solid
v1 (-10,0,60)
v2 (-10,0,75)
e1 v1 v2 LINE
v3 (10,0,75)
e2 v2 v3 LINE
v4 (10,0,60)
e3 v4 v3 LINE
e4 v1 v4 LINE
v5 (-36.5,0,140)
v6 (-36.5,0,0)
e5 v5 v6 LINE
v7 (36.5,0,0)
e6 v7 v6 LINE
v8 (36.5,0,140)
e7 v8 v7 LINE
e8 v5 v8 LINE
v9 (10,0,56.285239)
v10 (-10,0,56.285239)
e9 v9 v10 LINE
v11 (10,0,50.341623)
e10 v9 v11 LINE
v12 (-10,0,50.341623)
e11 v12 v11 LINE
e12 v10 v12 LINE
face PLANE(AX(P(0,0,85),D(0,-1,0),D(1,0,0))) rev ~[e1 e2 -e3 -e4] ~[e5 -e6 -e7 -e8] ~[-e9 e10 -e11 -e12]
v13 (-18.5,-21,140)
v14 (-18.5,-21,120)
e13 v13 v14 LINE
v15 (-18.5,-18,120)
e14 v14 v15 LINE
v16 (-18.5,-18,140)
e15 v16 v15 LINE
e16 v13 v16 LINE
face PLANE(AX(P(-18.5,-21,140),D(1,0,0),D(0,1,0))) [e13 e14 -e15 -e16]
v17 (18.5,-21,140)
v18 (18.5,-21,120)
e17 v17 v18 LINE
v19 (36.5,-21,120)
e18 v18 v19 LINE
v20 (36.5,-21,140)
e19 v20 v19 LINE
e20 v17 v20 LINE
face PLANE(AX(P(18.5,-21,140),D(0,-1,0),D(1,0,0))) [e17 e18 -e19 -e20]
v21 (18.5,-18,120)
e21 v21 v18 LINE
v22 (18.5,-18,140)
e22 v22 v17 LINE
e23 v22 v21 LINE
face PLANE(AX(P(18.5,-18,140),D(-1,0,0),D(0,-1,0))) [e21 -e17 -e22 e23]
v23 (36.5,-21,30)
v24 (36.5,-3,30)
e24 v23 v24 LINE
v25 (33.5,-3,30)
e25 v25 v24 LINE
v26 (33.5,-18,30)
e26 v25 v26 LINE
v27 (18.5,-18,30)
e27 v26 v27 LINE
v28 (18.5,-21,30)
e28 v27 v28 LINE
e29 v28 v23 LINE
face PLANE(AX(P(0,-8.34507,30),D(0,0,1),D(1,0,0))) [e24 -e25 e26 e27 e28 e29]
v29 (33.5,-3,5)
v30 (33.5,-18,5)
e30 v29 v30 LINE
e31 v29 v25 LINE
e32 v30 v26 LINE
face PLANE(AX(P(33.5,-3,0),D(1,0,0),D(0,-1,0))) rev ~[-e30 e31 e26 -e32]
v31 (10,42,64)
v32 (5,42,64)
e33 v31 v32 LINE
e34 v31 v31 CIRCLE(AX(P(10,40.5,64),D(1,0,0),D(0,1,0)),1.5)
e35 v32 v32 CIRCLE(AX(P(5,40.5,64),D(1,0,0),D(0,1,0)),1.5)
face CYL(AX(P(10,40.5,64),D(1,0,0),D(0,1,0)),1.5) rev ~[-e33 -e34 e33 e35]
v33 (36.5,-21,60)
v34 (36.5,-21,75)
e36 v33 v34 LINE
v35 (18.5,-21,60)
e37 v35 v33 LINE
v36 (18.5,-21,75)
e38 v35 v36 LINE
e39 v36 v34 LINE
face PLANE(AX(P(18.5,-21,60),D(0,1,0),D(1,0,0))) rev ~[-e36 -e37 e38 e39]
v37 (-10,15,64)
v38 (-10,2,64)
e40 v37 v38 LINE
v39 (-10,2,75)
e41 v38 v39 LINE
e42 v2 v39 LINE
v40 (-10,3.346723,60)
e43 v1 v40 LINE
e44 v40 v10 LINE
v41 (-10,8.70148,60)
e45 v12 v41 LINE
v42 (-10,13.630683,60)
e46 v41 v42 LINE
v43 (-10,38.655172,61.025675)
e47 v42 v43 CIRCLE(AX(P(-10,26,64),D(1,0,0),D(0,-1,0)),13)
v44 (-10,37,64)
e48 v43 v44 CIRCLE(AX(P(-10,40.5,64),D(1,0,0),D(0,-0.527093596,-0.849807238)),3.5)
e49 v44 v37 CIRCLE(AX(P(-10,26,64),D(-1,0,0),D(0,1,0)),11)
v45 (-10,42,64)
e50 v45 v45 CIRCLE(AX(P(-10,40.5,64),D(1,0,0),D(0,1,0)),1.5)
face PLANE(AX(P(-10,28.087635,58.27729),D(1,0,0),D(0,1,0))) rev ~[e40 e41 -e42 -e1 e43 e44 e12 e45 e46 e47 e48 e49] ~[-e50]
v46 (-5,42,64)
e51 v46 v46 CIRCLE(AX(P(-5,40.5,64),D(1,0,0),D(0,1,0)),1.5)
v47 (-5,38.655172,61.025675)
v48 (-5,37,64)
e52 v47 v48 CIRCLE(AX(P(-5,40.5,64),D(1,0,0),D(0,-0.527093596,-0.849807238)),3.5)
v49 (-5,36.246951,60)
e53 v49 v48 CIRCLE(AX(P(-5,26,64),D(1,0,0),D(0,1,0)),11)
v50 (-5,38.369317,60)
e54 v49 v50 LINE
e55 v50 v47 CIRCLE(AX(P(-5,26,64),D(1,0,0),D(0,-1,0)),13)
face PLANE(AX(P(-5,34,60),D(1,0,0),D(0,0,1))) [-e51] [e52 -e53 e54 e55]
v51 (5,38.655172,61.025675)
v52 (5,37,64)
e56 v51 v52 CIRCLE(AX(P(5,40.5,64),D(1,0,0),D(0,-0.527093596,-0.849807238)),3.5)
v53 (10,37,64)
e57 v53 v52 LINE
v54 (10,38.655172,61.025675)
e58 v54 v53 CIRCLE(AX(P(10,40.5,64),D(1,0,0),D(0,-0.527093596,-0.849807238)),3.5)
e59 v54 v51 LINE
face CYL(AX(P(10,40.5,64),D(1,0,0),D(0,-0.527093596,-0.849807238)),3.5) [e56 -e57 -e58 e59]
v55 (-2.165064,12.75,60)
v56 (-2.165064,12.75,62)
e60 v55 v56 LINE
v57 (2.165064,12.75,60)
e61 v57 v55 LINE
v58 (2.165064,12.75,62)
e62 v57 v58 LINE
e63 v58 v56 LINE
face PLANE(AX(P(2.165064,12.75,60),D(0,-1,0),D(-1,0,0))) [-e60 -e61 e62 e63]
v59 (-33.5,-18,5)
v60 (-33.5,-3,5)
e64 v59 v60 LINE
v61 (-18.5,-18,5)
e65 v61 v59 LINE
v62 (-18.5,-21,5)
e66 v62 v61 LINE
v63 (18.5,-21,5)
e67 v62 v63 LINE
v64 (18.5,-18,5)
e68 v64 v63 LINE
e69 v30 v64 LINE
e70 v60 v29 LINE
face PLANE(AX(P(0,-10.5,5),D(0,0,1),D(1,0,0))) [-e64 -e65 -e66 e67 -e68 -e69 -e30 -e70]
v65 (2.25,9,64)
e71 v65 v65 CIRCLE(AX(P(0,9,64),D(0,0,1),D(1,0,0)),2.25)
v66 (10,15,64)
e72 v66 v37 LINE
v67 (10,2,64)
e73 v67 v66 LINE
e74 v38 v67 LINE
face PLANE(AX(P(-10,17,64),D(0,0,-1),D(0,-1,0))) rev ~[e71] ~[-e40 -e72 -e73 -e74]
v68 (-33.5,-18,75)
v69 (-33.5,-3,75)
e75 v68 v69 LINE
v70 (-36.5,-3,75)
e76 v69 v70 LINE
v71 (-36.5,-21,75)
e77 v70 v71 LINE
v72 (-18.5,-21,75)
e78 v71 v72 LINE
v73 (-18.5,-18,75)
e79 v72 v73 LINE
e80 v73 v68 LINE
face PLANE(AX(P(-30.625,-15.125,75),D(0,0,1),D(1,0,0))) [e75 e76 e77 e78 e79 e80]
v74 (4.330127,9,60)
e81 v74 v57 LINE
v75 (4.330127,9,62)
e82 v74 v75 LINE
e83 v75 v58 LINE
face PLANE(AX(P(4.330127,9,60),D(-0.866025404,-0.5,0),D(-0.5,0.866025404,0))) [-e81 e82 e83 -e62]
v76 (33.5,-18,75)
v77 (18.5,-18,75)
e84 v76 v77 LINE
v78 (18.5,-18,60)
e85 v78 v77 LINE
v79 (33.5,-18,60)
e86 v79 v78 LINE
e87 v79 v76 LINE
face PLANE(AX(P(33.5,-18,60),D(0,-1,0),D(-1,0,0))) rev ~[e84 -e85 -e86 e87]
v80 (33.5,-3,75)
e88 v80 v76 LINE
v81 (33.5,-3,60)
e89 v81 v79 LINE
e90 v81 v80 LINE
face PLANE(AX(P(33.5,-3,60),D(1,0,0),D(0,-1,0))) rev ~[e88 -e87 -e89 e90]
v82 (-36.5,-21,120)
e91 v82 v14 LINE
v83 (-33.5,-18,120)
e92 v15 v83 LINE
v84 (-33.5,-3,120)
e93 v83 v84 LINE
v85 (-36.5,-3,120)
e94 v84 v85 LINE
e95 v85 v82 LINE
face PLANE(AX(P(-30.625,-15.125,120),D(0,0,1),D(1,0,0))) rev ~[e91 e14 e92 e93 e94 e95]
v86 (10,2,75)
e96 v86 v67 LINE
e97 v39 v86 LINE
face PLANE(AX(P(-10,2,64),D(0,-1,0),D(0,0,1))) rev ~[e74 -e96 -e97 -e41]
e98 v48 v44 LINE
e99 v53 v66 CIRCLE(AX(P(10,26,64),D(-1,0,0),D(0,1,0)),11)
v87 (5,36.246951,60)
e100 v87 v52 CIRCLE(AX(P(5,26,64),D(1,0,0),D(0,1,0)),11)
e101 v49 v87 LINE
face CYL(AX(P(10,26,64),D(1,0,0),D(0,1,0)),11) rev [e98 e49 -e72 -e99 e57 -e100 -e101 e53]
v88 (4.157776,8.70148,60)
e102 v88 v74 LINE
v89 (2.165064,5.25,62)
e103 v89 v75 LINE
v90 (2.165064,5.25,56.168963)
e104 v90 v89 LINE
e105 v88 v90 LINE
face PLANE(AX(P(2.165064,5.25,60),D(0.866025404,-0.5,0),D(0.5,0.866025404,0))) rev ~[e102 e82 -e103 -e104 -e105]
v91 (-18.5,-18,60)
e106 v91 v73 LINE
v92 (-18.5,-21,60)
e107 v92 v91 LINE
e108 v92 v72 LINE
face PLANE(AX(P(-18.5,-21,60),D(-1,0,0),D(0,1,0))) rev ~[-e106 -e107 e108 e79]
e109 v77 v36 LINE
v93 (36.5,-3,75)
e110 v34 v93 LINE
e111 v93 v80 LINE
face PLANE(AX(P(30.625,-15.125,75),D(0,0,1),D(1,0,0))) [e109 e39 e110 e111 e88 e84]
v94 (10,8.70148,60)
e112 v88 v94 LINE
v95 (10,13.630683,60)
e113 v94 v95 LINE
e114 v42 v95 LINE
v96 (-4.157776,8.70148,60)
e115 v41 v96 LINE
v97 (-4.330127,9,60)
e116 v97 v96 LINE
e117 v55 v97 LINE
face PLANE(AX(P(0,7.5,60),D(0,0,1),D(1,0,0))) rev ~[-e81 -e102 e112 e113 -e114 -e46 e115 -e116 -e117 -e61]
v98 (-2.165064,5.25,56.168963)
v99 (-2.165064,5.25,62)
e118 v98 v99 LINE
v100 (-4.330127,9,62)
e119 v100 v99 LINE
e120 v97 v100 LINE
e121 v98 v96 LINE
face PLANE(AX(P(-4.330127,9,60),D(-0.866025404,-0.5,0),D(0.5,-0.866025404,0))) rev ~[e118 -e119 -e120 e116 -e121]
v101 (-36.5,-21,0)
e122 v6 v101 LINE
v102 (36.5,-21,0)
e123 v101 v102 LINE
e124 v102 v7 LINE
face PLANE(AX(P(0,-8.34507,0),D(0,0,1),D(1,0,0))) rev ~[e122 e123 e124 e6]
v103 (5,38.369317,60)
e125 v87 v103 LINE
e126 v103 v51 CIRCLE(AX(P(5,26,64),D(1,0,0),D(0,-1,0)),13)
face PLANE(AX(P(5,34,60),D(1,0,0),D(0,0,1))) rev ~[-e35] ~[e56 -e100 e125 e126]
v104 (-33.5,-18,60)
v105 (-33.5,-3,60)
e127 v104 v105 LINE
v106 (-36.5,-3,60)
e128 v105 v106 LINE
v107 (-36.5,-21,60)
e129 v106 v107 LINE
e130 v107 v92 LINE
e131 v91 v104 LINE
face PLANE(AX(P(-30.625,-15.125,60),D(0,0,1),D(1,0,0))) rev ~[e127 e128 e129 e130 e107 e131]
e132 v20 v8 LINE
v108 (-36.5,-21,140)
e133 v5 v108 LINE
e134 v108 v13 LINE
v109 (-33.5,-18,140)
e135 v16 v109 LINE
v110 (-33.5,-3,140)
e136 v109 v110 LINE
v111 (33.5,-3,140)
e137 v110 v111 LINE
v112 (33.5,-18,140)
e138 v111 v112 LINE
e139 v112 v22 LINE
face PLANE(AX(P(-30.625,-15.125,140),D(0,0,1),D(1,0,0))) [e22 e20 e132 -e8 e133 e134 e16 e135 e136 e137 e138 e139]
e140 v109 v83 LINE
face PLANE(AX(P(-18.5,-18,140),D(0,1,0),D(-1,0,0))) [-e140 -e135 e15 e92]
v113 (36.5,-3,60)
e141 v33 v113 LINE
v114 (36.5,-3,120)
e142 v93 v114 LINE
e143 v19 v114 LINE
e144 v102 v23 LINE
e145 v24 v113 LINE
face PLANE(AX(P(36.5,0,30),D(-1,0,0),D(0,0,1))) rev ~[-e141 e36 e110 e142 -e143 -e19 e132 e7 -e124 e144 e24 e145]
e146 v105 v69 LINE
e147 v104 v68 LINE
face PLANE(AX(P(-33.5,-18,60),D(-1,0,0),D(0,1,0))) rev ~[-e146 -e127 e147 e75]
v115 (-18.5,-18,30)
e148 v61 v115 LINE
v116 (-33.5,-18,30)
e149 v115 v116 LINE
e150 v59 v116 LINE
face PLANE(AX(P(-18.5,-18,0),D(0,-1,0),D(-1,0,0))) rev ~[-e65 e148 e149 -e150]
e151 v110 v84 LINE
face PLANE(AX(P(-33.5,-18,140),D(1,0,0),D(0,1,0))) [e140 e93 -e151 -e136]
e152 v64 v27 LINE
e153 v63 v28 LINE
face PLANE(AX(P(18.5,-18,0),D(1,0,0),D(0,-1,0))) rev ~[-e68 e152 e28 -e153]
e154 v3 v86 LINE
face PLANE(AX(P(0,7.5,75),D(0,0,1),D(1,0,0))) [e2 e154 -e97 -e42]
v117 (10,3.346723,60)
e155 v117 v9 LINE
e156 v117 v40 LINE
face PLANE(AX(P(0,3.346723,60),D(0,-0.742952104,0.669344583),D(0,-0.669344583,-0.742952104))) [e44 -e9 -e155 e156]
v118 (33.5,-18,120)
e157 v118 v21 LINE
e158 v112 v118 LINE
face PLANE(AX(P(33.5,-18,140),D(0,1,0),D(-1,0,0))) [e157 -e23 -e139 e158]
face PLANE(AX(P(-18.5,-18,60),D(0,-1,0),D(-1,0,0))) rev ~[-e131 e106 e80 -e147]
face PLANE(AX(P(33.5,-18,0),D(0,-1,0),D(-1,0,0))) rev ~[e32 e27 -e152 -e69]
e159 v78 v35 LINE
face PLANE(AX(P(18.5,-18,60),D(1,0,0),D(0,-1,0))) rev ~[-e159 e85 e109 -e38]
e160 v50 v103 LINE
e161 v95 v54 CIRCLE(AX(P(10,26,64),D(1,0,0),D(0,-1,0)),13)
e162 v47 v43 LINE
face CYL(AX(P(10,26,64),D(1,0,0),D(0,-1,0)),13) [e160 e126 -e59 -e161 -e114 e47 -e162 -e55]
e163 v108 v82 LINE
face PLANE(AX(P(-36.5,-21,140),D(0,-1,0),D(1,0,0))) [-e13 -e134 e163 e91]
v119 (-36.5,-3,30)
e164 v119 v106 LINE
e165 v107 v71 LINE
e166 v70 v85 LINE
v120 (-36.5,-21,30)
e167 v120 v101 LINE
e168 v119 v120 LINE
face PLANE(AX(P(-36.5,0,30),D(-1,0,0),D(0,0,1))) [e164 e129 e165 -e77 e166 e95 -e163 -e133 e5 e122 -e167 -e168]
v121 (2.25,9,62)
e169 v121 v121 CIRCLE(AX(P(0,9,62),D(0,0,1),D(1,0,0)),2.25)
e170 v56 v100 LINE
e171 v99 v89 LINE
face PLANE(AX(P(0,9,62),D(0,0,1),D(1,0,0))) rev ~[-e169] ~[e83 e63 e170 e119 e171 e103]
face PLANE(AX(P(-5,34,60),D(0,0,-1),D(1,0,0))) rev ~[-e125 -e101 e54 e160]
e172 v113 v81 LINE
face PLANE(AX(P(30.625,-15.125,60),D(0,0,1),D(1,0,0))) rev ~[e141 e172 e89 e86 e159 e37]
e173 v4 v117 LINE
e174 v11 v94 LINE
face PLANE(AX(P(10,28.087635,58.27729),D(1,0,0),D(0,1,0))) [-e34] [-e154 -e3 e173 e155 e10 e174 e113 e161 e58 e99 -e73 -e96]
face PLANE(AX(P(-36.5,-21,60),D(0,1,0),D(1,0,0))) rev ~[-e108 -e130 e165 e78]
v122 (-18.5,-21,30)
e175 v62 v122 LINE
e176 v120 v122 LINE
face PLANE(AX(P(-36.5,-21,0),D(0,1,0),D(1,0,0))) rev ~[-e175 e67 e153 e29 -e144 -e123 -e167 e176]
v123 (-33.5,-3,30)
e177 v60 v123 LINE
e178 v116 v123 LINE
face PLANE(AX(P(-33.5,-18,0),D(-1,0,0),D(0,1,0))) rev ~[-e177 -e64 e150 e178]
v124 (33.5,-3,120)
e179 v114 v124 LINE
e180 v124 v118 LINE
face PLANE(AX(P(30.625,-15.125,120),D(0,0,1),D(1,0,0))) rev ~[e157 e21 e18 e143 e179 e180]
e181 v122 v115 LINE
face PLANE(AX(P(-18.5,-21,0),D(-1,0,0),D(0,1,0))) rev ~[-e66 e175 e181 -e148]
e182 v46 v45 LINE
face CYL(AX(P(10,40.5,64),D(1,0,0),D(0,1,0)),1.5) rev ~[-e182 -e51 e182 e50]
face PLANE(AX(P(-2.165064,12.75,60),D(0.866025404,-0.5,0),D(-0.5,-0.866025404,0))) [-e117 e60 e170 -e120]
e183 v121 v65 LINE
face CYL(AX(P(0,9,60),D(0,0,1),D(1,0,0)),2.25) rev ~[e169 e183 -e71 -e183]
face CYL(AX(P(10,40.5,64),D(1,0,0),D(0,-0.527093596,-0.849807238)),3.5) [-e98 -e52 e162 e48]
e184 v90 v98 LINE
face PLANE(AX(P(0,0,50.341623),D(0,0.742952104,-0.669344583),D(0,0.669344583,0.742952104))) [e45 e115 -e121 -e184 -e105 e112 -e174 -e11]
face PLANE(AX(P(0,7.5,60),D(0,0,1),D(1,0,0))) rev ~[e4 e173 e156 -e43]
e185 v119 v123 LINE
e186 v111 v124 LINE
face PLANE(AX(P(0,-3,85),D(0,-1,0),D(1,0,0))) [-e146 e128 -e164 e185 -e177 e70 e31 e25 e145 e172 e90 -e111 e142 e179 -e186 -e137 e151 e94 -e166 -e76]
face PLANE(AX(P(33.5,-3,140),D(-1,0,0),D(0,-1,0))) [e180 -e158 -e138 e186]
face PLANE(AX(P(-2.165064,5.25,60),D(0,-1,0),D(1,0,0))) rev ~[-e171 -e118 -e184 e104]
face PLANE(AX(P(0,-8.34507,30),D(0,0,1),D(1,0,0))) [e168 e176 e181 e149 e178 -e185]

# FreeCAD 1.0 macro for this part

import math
import FreeCAD as App
import Part
import Sketcher

V = App.Vector
Q = App.Units.Quantity

doc = App.newDocument("Part")
params = doc.addObject("Spreadsheet::Sheet", "Params")
for row, (alias, value) in enumerate([
    ("sketch1_width", "18 mm"),
    ("sketch1_width2", "15 mm"),
    ("sketch1_width3", "67 mm"),
    ("sketch1_height", "3 mm"),
    ("sketch1_height2", "21 mm"),
    ("pad1_length", "30 mm"),
    ("sketch2_width", "73 mm"),
    ("sketch2_height", "21 mm"),
    ("pad2_length", "5 mm"),
    ("sketch3_width", "73 mm"),
    ("sketch3_height", "110 mm"),
    ("pad3_length", "3 mm"),
    ("sketch4_width", "15 mm"),
    ("sketch4_width2", "3 mm"),
    ("pad4_length", "15 mm"),
    ("sketch5_width", "3 mm"),
    ("sketch5_width2", "18 mm"),
    ("pad5_length", "20 mm"),
    ("sketch6_width", "20 mm"),
    ("sketch6_height", "15 mm"),
    ("pad6_length", "15 mm"),
    ("sketch7_radius", "11 mm"),
    ("sketch7_radius2", "13 mm"),
    ("sketch7_radius3", "3.5 mm"),
    ("pad7_length", "20 mm"),
    ("sketch8_diameter", "3 mm"),
    ("pocket1_length", "49.4 mm"),
    ("sketch9_width", "10 mm"),
    ("sketch9_height", "11 mm"),
    ("sketch10_width", "15 mm"),
    ("sketch10_height", "12 mm"),
    ("sketch11_length", "13 mm"),
    ("sketch11_length2", "5 mm"),
    ("pad8_length", "20 mm"),
    ("sketch12_diameter", "4.5 mm"),
    ("pocket4_length", "21.1 mm"),
    ("pocket5_length", "10 mm"),
    ("pocket5_length2", "2 mm"),
], start=1):
    params.set(f"A{row}", alias)
    params.set(f"B{row}", "=" + value)
    params.setAlias(f"B{row}", alias)

body = doc.addObject("PartDesign::Body", "Body")

sketch1 = doc.addObject("Sketcher::SketchObject", "Sketch")
body.addObject(sketch1)
sketch1.AttachmentSupport = (doc.XY_Plane, [""])
sketch1.MapMode = "FlatFace"
sketch1.addGeometry([
    Part.LineSegment(V(-36.5, -21, 0), V(-18.5, -21, 0)),
    Part.LineSegment(V(-18.5, -21, 0), V(-18.5, -18, 0)),
    Part.LineSegment(V(-18.5, -18, 0), V(-33.5, -18, 0)),
    Part.LineSegment(V(-33.5, -18, 0), V(-33.5, -3, 0)),
    Part.LineSegment(V(-33.5, -3, 0), V(33.5, -3, 0)),
    Part.LineSegment(V(33.5, -3, 0), V(33.5, -18, 0)),
    Part.LineSegment(V(33.5, -18, 0), V(18.5, -18, 0)),
    Part.LineSegment(V(18.5, -18, 0), V(18.5, -21, 0)),
    Part.LineSegment(V(18.5, -21, 0), V(36.5, -21, 0)),
    Part.LineSegment(V(36.5, -21, 0), V(36.5, 0, 0)),
    Part.LineSegment(V(36.5, 0, 0), V(-36.5, 0, 0)),
    Part.LineSegment(V(-36.5, 0, 0), V(-36.5, -21, 0)),
], False)
sketch1.addConstraint([
    Sketcher.Constraint("Coincident", 0, 2, 1, 1),
    Sketcher.Constraint("Coincident", 1, 2, 2, 1),
    Sketcher.Constraint("Coincident", 2, 2, 3, 1),
    Sketcher.Constraint("Coincident", 3, 2, 4, 1),
    Sketcher.Constraint("Coincident", 4, 2, 5, 1),
    Sketcher.Constraint("Coincident", 5, 2, 6, 1),
    Sketcher.Constraint("Coincident", 6, 2, 7, 1),
    Sketcher.Constraint("Coincident", 7, 2, 8, 1),
    Sketcher.Constraint("Coincident", 8, 2, 9, 1),
    Sketcher.Constraint("Coincident", 9, 2, 10, 1),
    Sketcher.Constraint("Coincident", 10, 2, 11, 1),
    Sketcher.Constraint("Coincident", 11, 2, 0, 1),
    Sketcher.Constraint("Horizontal", 0),
    Sketcher.Constraint("Vertical", 1),
    Sketcher.Constraint("Horizontal", 2),
    Sketcher.Constraint("Vertical", 3),
    Sketcher.Constraint("Horizontal", 4),
    Sketcher.Constraint("Vertical", 5),
    Sketcher.Constraint("Horizontal", 6),
    Sketcher.Constraint("Vertical", 7),
    Sketcher.Constraint("Horizontal", 8),
    Sketcher.Constraint("Vertical", 9),
    Sketcher.Constraint("Horizontal", 10),
    Sketcher.Constraint("Vertical", 11),
    Sketcher.Constraint("Symmetric", 9, 2, 10, 2, -1, 1),
    Sketcher.Constraint("Symmetric", 2, 2, 5, 2, -2),
    Sketcher.Constraint("Symmetric", 0, 2, 7, 2, -2),
    Sketcher.Constraint("Equal", 6, 3),
    Sketcher.Constraint("DistanceX", 0, 1, 0, 2, 18.0),
    Sketcher.Constraint("DistanceX", 2, 2, 2, 1, 15.0),
    Sketcher.Constraint("DistanceX", 4, 1, 4, 2, 67.0),
    Sketcher.Constraint("DistanceY", 1, 1, 1, 2, 3.0),
    Sketcher.Constraint("DistanceY", 9, 1, 9, 2, 21.0),
])
sketch1.setExpression("Constraints[28]", "Params.sketch1_width")
sketch1.setExpression("Constraints[29]", "Params.sketch1_width2")
sketch1.setExpression("Constraints[30]", "Params.sketch1_width3")
sketch1.setExpression("Constraints[31]", "Params.sketch1_height")
sketch1.setExpression("Constraints[32]", "Params.sketch1_height2")
pad1 = doc.addObject("PartDesign::Pad", "Pad")
body.addObject(pad1)
pad1.Profile = sketch1
pad1.setExpression("Length", "Params.pad1_length")

sketch2 = doc.addObject("Sketcher::SketchObject", "Sketch001")
body.addObject(sketch2)
sketch2.AttachmentSupport = (doc.XY_Plane, [""])
sketch2.MapMode = "FlatFace"
sketch2.addGeometry([
    Part.LineSegment(V(-36.5, 0, 0), V(-36.5, -21, 0)),
    Part.LineSegment(V(-36.5, -21, 0), V(36.5, -21, 0)),
    Part.LineSegment(V(36.5, -21, 0), V(36.5, 0, 0)),
    Part.LineSegment(V(36.5, 0, 0), V(-36.5, 0, 0)),
], False)
sketch2.addConstraint([
    Sketcher.Constraint("Coincident", 0, 2, 1, 1),
    Sketcher.Constraint("Coincident", 1, 2, 2, 1),
    Sketcher.Constraint("Coincident", 2, 2, 3, 1),
    Sketcher.Constraint("Coincident", 3, 2, 0, 1),
    Sketcher.Constraint("Vertical", 0),
    Sketcher.Constraint("Horizontal", 1),
    Sketcher.Constraint("Vertical", 2),
    Sketcher.Constraint("Horizontal", 3),
    Sketcher.Constraint("Symmetric", 2, 2, 3, 2, -1, 1),
    Sketcher.Constraint("DistanceX", 1, 1, 1, 2, 73.0),
    Sketcher.Constraint("DistanceY", 0, 2, 0, 1, 21.0),
])
sketch2.setExpression("Constraints[9]", "Params.sketch2_width")
sketch2.setExpression("Constraints[10]", "Params.sketch2_height")
pad2 = doc.addObject("PartDesign::Pad", "Pad001")
body.addObject(pad2)
pad2.Profile = sketch2
pad2.setExpression("Length", "Params.pad2_length")

sketch3 = doc.addObject("Sketcher::SketchObject", "Sketch002")
body.addObject(sketch3)
sketch3.AttachmentSupport = (doc.XZ_Plane, [""])
sketch3.MapMode = "FlatFace"
sketch3.addGeometry([
    Part.LineSegment(V(-36.5, 140, 0), V(-36.5, 30, 0)),
    Part.LineSegment(V(-36.5, 30, 0), V(36.5, 30, 0)),
    Part.LineSegment(V(36.5, 30, 0), V(36.5, 140, 0)),
    Part.LineSegment(V(36.5, 140, 0), V(-36.5, 140, 0)),
], False)
sketch3.addConstraint([
    Sketcher.Constraint("Coincident", 0, 2, 1, 1),
    Sketcher.Constraint("Coincident", 1, 2, 2, 1),
    Sketcher.Constraint("Coincident", 2, 2, 3, 1),
    Sketcher.Constraint("Coincident", 3, 2, 0, 1),
    Sketcher.Constraint("Vertical", 0),
    Sketcher.Constraint("Horizontal", 1),
    Sketcher.Constraint("Vertical", 2),
    Sketcher.Constraint("Horizontal", 3),
    Sketcher.Constraint("DistanceX", 1, 1, 1, 2, 73.0),
    Sketcher.Constraint("DistanceY", 0, 2, 0, 1, 110.0),
    Sketcher.Constraint("DistanceY", -1, 1, 0, 2, 30.0),
    Sketcher.Constraint("DistanceX", 0, 2, -1, 1, 36.5),
])
sketch3.setExpression("Constraints[8]", "Params.sketch3_width")
sketch3.setExpression("Constraints[9]", "Params.sketch3_height")
pad3 = doc.addObject("PartDesign::Pad", "Pad002")
body.addObject(pad3)
pad3.Profile = sketch3
pad3.setExpression("Length", "Params.pad3_length")

sketch4 = doc.addObject("Sketcher::SketchObject", "Sketch003")
body.addObject(sketch4)
sketch4.AttachmentSupport = (doc.XY_Plane, [""])
sketch4.MapMode = "FlatFace"
sketch4.AttachmentOffset = App.Placement(V(0, 0, 60), App.Rotation())
sketch4.addGeometry([
    Part.LineSegment(V(-18.5, -18, 0), V(-33.5, -18, 0)),
    Part.LineSegment(V(-33.5, -18, 0), V(-33.5, -3, 0)),
    Part.LineSegment(V(-33.5, -3, 0), V(-36.5, -3, 0)),
    Part.LineSegment(V(-36.5, -3, 0), V(-36.5, -21, 0)),
    Part.LineSegment(V(-36.5, -21, 0), V(-18.5, -21, 0)),
    Part.LineSegment(V(-18.5, -21, 0), V(-18.5, -18, 0)),
    Part.LineSegment(V(33.5, -18, 0), V(18.5, -18, 0)),
    Part.LineSegment(V(18.5, -18, 0), V(18.5, -21, 0)),
    Part.LineSegment(V(18.5, -21, 0), V(36.5, -21, 0)),
    Part.LineSegment(V(36.5, -21, 0), V(36.5, -3, 0)),
    Part.LineSegment(V(36.5, -3, 0), V(33.5, -3, 0)),
    Part.LineSegment(V(33.5, -3, 0), V(33.5, -18, 0)),
], False)
sketch4.addConstraint([
    Sketcher.Constraint("Coincident", 0, 2, 1, 1),
    Sketcher.Constraint("Coincident", 1, 2, 2, 1),
    Sketcher.Constraint("Coincident", 2, 2, 3, 1),
    Sketcher.Constraint("Coincident", 3, 2, 4, 1),
    Sketcher.Constraint("Coincident", 4, 2, 5, 1),
    Sketcher.Constraint("Coincident", 5, 2, 0, 1),
    Sketcher.Constraint("Coincident", 6, 2, 7, 1),
    Sketcher.Constraint("Coincident", 7, 2, 8, 1),
    Sketcher.Constraint("Coincident", 8, 2, 9, 1),
    Sketcher.Constraint("Coincident", 9, 2, 10, 1),
    Sketcher.Constraint("Coincident", 10, 2, 11, 1),
    Sketcher.Constraint("Coincident", 11, 2, 6, 1),
    Sketcher.Constraint("Horizontal", 0),
    Sketcher.Constraint("Vertical", 1),
    Sketcher.Constraint("Horizontal", 2),
    Sketcher.Constraint("Vertical", 3),
    Sketcher.Constraint("Horizontal", 4),
    Sketcher.Constraint("Vertical", 5),
    Sketcher.Constraint("Horizontal", 6),
    Sketcher.Constraint("Vertical", 7),
    Sketcher.Constraint("Horizontal", 8),
    Sketcher.Constraint("Vertical", 9),
    Sketcher.Constraint("Horizontal", 10),
    Sketcher.Constraint("Vertical", 11),
    Sketcher.Constraint("Symmetric", 5, 2, 6, 2, -2),
    Sketcher.Constraint("Symmetric", 3, 2, 8, 2, -2),
    Sketcher.Constraint("Symmetric", 1, 2, 10, 2, -2),
    Sketcher.Constraint("Equal", 6, 1),
    Sketcher.Constraint("Equal", 8, 3),
    Sketcher.Constraint("DistanceX", 0, 2, 0, 1, 15.0),
    Sketcher.Constraint("DistanceX", 2, 2, 2, 1, 3.0),
    Sketcher.Constraint("DistanceY", 0, 2, -1, 1, 18.0),
    Sketcher.Constraint("DistanceX", 5, 2, 6, 2, 37.0),
])
sketch4.setExpression("Constraints[29]", "Params.sketch4_width")
sketch4.setExpression("Constraints[30]", "Params.sketch4_width2")
pad4 = doc.addObject("PartDesign::Pad", "Pad003")
body.addObject(pad4)
pad4.Profile = sketch4
pad4.setExpression("Length", "Params.pad4_length")

sketch5 = doc.addObject("Sketcher::SketchObject", "Sketch004")
body.addObject(sketch5)
sketch5.AttachmentSupport = (doc.XY_Plane, [""])
sketch5.MapMode = "FlatFace"
sketch5.AttachmentOffset = App.Placement(V(0, 0, 140), App.Rotation())
sketch5.addGeometry([
    Part.LineSegment(V(-33.5, -18, 0), V(-33.5, -3, 0)),
    Part.LineSegment(V(-33.5, -3, 0), V(-36.5, -3, 0)),
    Part.LineSegment(V(-36.5, -3, 0), V(-36.5, -21, 0)),
    Part.LineSegment(V(-36.5, -21, 0), V(-18.5, -21, 0)),
    Part.LineSegment(V(-18.5, -21, 0), V(-18.5, -18, 0)),
    Part.LineSegment(V(-18.5, -18, 0), V(-33.5, -18, 0)),
    Part.LineSegment(V(36.5, -21, 0), V(36.5, -3, 0)),
    Part.LineSegment(V(36.5, -3, 0), V(33.5, -3, 0)),
    Part.LineSegment(V(33.5, -3, 0), V(33.5, -18, 0)),
    Part.LineSegment(V(33.5, -18, 0), V(18.5, -18, 0)),
    Part.LineSegment(V(18.5, -18, 0), V(18.5, -21, 0)),
    Part.LineSegment(V(18.5, -21, 0), V(36.5, -21, 0)),
], False)
sketch5.addConstraint([
    Sketcher.Constraint("Coincident", 0, 2, 1, 1),
    Sketcher.Constraint("Coincident", 1, 2, 2, 1),
    Sketcher.Constraint("Coincident", 2, 2, 3, 1),
    Sketcher.Constraint("Coincident", 3, 2, 4, 1),
    Sketcher.Constraint("Coincident", 4, 2, 5, 1),
    Sketcher.Constraint("Coincident", 5, 2, 0, 1),
    Sketcher.Constraint("Coincident", 6, 2, 7, 1),
    Sketcher.Constraint("Coincident", 7, 2, 8, 1),
    Sketcher.Constraint("Coincident", 8, 2, 9, 1),
    Sketcher.Constraint("Coincident", 9, 2, 10, 1),
    Sketcher.Constraint("Coincident", 10, 2, 11, 1),
    Sketcher.Constraint("Coincident", 11, 2, 6, 1),
    Sketcher.Constraint("Vertical", 0),
    Sketcher.Constraint("Horizontal", 1),
    Sketcher.Constraint("Vertical", 2),
    Sketcher.Constraint("Horizontal", 3),
    Sketcher.Constraint("Vertical", 4),
    Sketcher.Constraint("Horizontal", 5),
    Sketcher.Constraint("Vertical", 6),
    Sketcher.Constraint("Horizontal", 7),
    Sketcher.Constraint("Vertical", 8),
    Sketcher.Constraint("Horizontal", 9),
    Sketcher.Constraint("Vertical", 10),
    Sketcher.Constraint("Horizontal", 11),
    Sketcher.Constraint("Symmetric", 1, 2, 6, 2, -2),
    Sketcher.Constraint("Symmetric", 5, 2, 8, 2, -2),
    Sketcher.Constraint("Symmetric", 3, 2, 10, 2, -2),
    Sketcher.Constraint("Equal", 9, 0),
    Sketcher.Constraint("Equal", 11, 2),
    Sketcher.Constraint("DistanceX", 1, 2, 1, 1, 3.0),
    Sketcher.Constraint("DistanceX", 3, 1, 3, 2, 18.0),
    Sketcher.Constraint("DistanceY", 0, 2, -1, 1, 3.0),
    Sketcher.Constraint("DistanceX", 4, 2, 6, 2, 55.0),
])
sketch5.setExpression("Constraints[29]", "Params.sketch5_width")
sketch5.setExpression("Constraints[30]", "Params.sketch5_width2")
pad5 = doc.addObject("PartDesign::Pad", "Pad004")
body.addObject(pad5)
pad5.Profile = sketch5
pad5.setExpression("Length", "Params.pad5_length")
pad5.Reversed = True

sketch6 = doc.addObject("Sketcher::SketchObject", "Sketch005")
body.addObject(sketch6)
sketch6.AttachmentSupport = (doc.XY_Plane, [""])
sketch6.MapMode = "FlatFace"
sketch6.AttachmentOffset = App.Placement(V(0, 0, 60), App.Rotation())
sketch6.addGeometry([
    Part.LineSegment(V(-10, 15, 0), V(-10, 0, 0)),
    Part.LineSegment(V(-10, 0, 0), V(10, 0, 0)),
    Part.LineSegment(V(10, 0, 0), V(10, 15, 0)),
    Part.LineSegment(V(10, 15, 0), V(-10, 15, 0)),
], False)
sketch6.addConstraint([
    Sketcher.Constraint("Coincident", 0, 2, 1, 1),
    Sketcher.Constraint("Coincident", 1, 2, 2, 1),
    Sketcher.Constraint("Coincident", 2, 2, 3, 1),
    Sketcher.Constraint("Coincident", 3, 2, 0, 1),
    Sketcher.Constraint("Vertical", 0),
    Sketcher.Constraint("Horizontal", 1),
    Sketcher.Constraint("Vertical", 2),
    Sketcher.Constraint("Horizontal", 3),
    Sketcher.Constraint("Symmetric", 0, 2, 1, 2, -1, 1),
    Sketcher.Constraint("DistanceX", 1, 1, 1, 2, 20.0),
    Sketcher.Constraint("DistanceY", 0, 2, 0, 1, 15.0),
])
sketch6.setExpression("Constraints[9]", "Params.sketch6_width")
sketch6.setExpression("Constraints[10]", "Params.sketch6_height")
pad6 = doc.addObject("PartDesign::Pad", "Pad005")
body.addObject(pad6)
pad6.Profile = sketch6
pad6.setExpression("Length", "Params.pad6_length")

sketch7 = doc.addObject("Sketcher::SketchObject", "Sketch006")
body.addObject(sketch7)
sketch7.AttachmentSupport = (doc.YZ_Plane, [""])
sketch7.MapMode = "FlatFace"
sketch7.AttachmentOffset = App.Placement(V(0, 0, 10), App.Rotation())
sketch7.addGeometry([
    Part.ArcOfCircle(Part.Circle(V(26, 64, 0), V(0, 0, 1), 11), math.radians(180), math.radians(360)),
    Part.LineSegment(V(15, 64, 0), V(13, 64, 0)),
    Part.ArcOfCircle(Part.Circle(V(26, 64, 0), V(0, 0, 1), 13), math.radians(180), math.radians(346.773905)),
    Part.ArcOfCircle(Part.Circle(V(40.5, 64, 0), V(0, 0, 1), 3.5), math.radians(-121.80929), math.radians(180)),
], False)
sketch7.addConstraint([
    Sketcher.Constraint("Coincident", 0, 1, 1, 1),
    Sketcher.Constraint("Coincident", 1, 2, 2, 1),
    Sketcher.Constraint("Coincident", 2, 2, 3, 1),
    Sketcher.Constraint("Tangent", 3, 2, 0, 2),
    Sketcher.Constraint("Horizontal", 1),
    Sketcher.Constraint("Coincident", 2, 3, 0, 3),
    Sketcher.Constraint("Horizontal", 2, 3, 3, 3),
    Sketcher.Constraint("Horizontal", 3, 3, 0, 1),
    Sketcher.Constraint("Radius", 0, 11.0),
    Sketcher.Constraint("Radius", 2, 13.0),
    Sketcher.Constraint("Radius", 3, 3.5),
    Sketcher.Constraint("DistanceX", -1, 1, 0, 3, 26.0),
    Sketcher.Constraint("DistanceY", -1, 1, 0, 3, 64.0),
])
sketch7.setExpression("Constraints[8]", "Params.sketch7_radius")
sketch7.setExpression("Constraints[9]", "Params.sketch7_radius2")
sketch7.setExpression("Constraints[10]", "Params.sketch7_radius3")
pad7 = doc.addObject("PartDesign::Pad", "Pad006")
body.addObject(pad7)
pad7.Profile = sketch7
pad7.setExpression("Length", "Params.pad7_length")
pad7.Reversed = True

sketch8 = doc.addObject("Sketcher::SketchObject", "Sketch007")
body.addObject(sketch8)
sketch8.AttachmentSupport = (doc.YZ_Plane, [""])
sketch8.MapMode = "FlatFace"
sketch8.AttachmentOffset = App.Placement(V(0, 0, 10), App.Rotation())
sketch8.addGeometry(Part.Circle(V(40.5, 64, 0), V(0, 0, 1), 1.5), False)
sketch8.addConstraint([
    Sketcher.Constraint("Diameter", 0, 3.0),
    Sketcher.Constraint("DistanceY", -1, 1, 0, 3, 64.0),
    Sketcher.Constraint("DistanceX", -1, 1, 0, 3, 40.5),
])
sketch8.setExpression("Constraints[0]", "Params.sketch8_diameter")
pocket1 = doc.addObject("PartDesign::Pocket", "Pocket")
body.addObject(pocket1)
pocket1.Profile = sketch8
pocket1.setExpression("Length", "Params.pocket1_length")

sketch9 = doc.addObject("Sketcher::SketchObject", "Sketch008")
body.addObject(sketch9)
sketch9.AttachmentSupport = (doc.XZ_Plane, [""])
sketch9.MapMode = "FlatFace"
sketch9.AttachmentOffset = App.Placement(V(0, 0, -34), App.Rotation())
sketch9.addGeometry([
    Part.LineSegment(V(-5, 71, 0), V(-5, 60, 0)),
    Part.LineSegment(V(-5, 60, 0), V(5, 60, 0)),
    Part.LineSegment(V(5, 60, 0), V(5, 71, 0)),
    Part.LineSegment(V(5, 71, 0), V(-5, 71, 0)),
], False)
sketch9.addConstraint([
    Sketcher.Constraint("Coincident", 0, 2, 1, 1),
    Sketcher.Constraint("Coincident", 1, 2, 2, 1),
    Sketcher.Constraint("Coincident", 2, 2, 3, 1),
    Sketcher.Constraint("Coincident", 3, 2, 0, 1),
    Sketcher.Constraint("Vertical", 0),
    Sketcher.Constraint("Horizontal", 1),
    Sketcher.Constraint("Vertical", 2),
    Sketcher.Constraint("Horizontal", 3),
    Sketcher.Constraint("DistanceX", 1, 1, 1, 2, 10.0),
    Sketcher.Constraint("DistanceY", 0, 2, 0, 1, 11.0),
    Sketcher.Constraint("DistanceX", 0, 2, -1, 1, 5.0),
    Sketcher.Constraint("DistanceY", -1, 1, 0, 2, 60.0),
])
sketch9.setExpression("Constraints[8]", "Params.sketch9_width")
sketch9.setExpression("Constraints[9]", "Params.sketch9_height")
pocket2 = doc.addObject("PartDesign::Pocket", "Pocket001")
body.addObject(pocket2)
pocket2.Profile = sketch9
pocket2.Type = "ThroughAll"

sketch10 = doc.addObject("Sketcher::SketchObject", "Sketch009")
body.addObject(sketch10)
sketch10.AttachmentSupport = (doc.YZ_Plane, [""])
sketch10.MapMode = "FlatFace"
sketch10.AttachmentOffset = App.Placement(V(0, 0, -10), App.Rotation())
sketch10.addGeometry([
    Part.LineSegment(V(17, 76, 0), V(17, 64, 0)),
    Part.LineSegment(V(17, 64, 0), V(2, 64, 0)),
    Part.LineSegment(V(2, 64, 0), V(2, 76, 0)),
    Part.LineSegment(V(2, 76, 0), V(17, 76, 0)),
], False)
sketch10.addConstraint([
    Sketcher.Constraint("Coincident", 0, 2, 1, 1),
    Sketcher.Constraint("Coincident", 1, 2, 2, 1),
    Sketcher.Constraint("Coincident", 2, 2, 3, 1),
    Sketcher.Constraint("Coincident", 3, 2, 0, 1),
    Sketcher.Constraint("Vertical", 0),
    Sketcher.Constraint("Horizontal", 1),
    Sketcher.Constraint("Vertical", 2),
    Sketcher.Constraint("Horizontal", 3),
    Sketcher.Constraint("DistanceX", 1, 2, 1, 1, 15.0),
    Sketcher.Constraint("DistanceY", 0, 2, 0, 1, 12.0),
    Sketcher.Constraint("DistanceX", -1, 1, 0, 2, 17.0),
    Sketcher.Constraint("DistanceY", -1, 1, 0, 2, 64.0),
])
sketch10.setExpression("Constraints[8]", "Params.sketch10_width")
sketch10.setExpression("Constraints[9]", "Params.sketch10_height")
pocket3 = doc.addObject("PartDesign::Pocket", "Pocket002")
body.addObject(pocket3)
pocket3.Profile = sketch10
pocket3.Type = "ThroughAll"
pocket3.Reversed = True

sketch11 = doc.addObject("Sketcher::SketchObject", "Sketch010")
body.addObject(sketch11)
sketch11.AttachmentSupport = (doc.YZ_Plane, [""])
sketch11.MapMode = "FlatFace"
sketch11.addGeometry([
    Part.LineSegment(V(0, 56.285239, 0), V(0, 50.341623, 0)),
    Part.LineSegment(V(0, 50.341623, 0), V(8.70148, 60, 0)),
    Part.LineSegment(V(8.70148, 60, 0), V(3.346723, 60, 0)),
    Part.LineSegment(V(3.346723, 60, 0), V(0, 56.285239, 0)),
], False)
sketch11.addConstraint([
    Sketcher.Constraint("Coincident", 0, 2, 1, 1),
    Sketcher.Constraint("Coincident", 1, 2, 2, 1),
    Sketcher.Constraint("Coincident", 2, 2, 3, 1),
    Sketcher.Constraint("Coincident", 3, 2, 0, 1),
    Sketcher.Constraint("Vertical", 0),
    Sketcher.Constraint("Horizontal", 2),
    Sketcher.Constraint("PointOnObject", 0, 2, -2),
    Sketcher.Constraint("Parallel", 1, 3),
    Sketcher.Constraint("Distance", 1, 13.0),
    Sketcher.Constraint("Distance", 3, 5.0),
    Sketcher.Constraint("DistanceY", -1, 1, 1, 2, 60.0),
    Sketcher.Constraint("DistanceX", 2, 2, 2, 1, 5.354757),
])
sketch11.setExpression("Constraints[8]", "Params.sketch11_length")
sketch11.setExpression("Constraints[9]", "Params.sketch11_length2")
pad8 = doc.addObject("PartDesign::Pad", "Pad007")
body.addObject(pad8)
pad8.Profile = sketch11
pad8.setExpression("Length", "Params.pad8_length")
pad8.Midplane = True

sketch12 = doc.addObject("Sketcher::SketchObject", "Sketch011")
body.addObject(sketch12)
sketch12.AttachmentSupport = (doc.XY_Plane, [""])
sketch12.MapMode = "FlatFace"
sketch12.AttachmentOffset = App.Placement(V(0, 0, 60), App.Rotation())
sketch12.addGeometry(Part.Circle(V(0, 9, 0), V(0, 0, 1), 2.25), False)
sketch12.addConstraint([
    Sketcher.Constraint("PointOnObject", 0, 3, -2),
    Sketcher.Constraint("Diameter", 0, 4.5),
    Sketcher.Constraint("DistanceY", -1, 1, 0, 3, 9.0),
])
sketch12.setExpression("Constraints[1]", "Params.sketch12_diameter")
pocket4 = doc.addObject("PartDesign::Pocket", "Pocket003")
body.addObject(pocket4)
pocket4.Profile = sketch12
pocket4.setExpression("Length", "Params.pocket4_length")
pocket4.Midplane = True

sketch13 = doc.addObject("Sketcher::SketchObject", "Sketch012")
body.addObject(sketch13)
sketch13.AttachmentSupport = (doc.XY_Plane, [""])
sketch13.MapMode = "FlatFace"
sketch13.AttachmentOffset = App.Placement(V(0, 0, 60), App.Rotation())
sketch13.addGeometry([
    Part.LineSegment(V(2.165064, 5.25, 0), V(4.330127, 9, 0)),
    Part.LineSegment(V(4.330127, 9, 0), V(2.165064, 12.75, 0)),
    Part.LineSegment(V(2.165064, 12.75, 0), V(-2.165064, 12.75, 0)),
    Part.LineSegment(V(-2.165064, 12.75, 0), V(-4.330127, 9, 0)),
    Part.LineSegment(V(-4.330127, 9, 0), V(-2.165064, 5.25, 0)),
    Part.LineSegment(V(-2.165064, 5.25, 0), V(2.165064, 5.25, 0)),
], False)
sketch13.addConstraint([
    Sketcher.Constraint("Coincident", 0, 2, 1, 1),
    Sketcher.Constraint("Coincident", 1, 2, 2, 1),
    Sketcher.Constraint("Coincident", 2, 2, 3, 1),
    Sketcher.Constraint("Coincident", 3, 2, 4, 1),
    Sketcher.Constraint("Coincident", 4, 2, 5, 1),
    Sketcher.Constraint("Coincident", 5, 2, 0, 1),
    Sketcher.Constraint("Horizontal", 2),
    Sketcher.Constraint("Horizontal", 5),
    Sketcher.Constraint("Symmetric", 0, 2, 3, 2, -2),
    Sketcher.Constraint("Parallel", 0, 3),
    Sketcher.Constraint("Parallel", 1, 4),
    Sketcher.Constraint("Vertical", 2, 2, 4, 2),
    Sketcher.Constraint("Vertical", 1, 2, 5, 2),
    Sketcher.Constraint("Angle", 0, Q("60 deg")),
    Sketcher.Constraint("DistanceY", -1, 1, 0, 2, 9.0),
    Sketcher.Constraint("DistanceY", 4, 2, 2, 2, 7.5),
    Sketcher.Constraint("DistanceX", 2, 2, 2, 1, 4.330127),
])
pocket5 = doc.addObject("PartDesign::Pocket", "Pocket004")
body.addObject(pocket5)
pocket5.Profile = sketch13
pocket5.Type = "TwoLengths"
pocket5.setExpression("Length", "Params.pocket5_length")
pocket5.setExpression("Length2", "Params.pocket5_length2")

doc.recompute()
